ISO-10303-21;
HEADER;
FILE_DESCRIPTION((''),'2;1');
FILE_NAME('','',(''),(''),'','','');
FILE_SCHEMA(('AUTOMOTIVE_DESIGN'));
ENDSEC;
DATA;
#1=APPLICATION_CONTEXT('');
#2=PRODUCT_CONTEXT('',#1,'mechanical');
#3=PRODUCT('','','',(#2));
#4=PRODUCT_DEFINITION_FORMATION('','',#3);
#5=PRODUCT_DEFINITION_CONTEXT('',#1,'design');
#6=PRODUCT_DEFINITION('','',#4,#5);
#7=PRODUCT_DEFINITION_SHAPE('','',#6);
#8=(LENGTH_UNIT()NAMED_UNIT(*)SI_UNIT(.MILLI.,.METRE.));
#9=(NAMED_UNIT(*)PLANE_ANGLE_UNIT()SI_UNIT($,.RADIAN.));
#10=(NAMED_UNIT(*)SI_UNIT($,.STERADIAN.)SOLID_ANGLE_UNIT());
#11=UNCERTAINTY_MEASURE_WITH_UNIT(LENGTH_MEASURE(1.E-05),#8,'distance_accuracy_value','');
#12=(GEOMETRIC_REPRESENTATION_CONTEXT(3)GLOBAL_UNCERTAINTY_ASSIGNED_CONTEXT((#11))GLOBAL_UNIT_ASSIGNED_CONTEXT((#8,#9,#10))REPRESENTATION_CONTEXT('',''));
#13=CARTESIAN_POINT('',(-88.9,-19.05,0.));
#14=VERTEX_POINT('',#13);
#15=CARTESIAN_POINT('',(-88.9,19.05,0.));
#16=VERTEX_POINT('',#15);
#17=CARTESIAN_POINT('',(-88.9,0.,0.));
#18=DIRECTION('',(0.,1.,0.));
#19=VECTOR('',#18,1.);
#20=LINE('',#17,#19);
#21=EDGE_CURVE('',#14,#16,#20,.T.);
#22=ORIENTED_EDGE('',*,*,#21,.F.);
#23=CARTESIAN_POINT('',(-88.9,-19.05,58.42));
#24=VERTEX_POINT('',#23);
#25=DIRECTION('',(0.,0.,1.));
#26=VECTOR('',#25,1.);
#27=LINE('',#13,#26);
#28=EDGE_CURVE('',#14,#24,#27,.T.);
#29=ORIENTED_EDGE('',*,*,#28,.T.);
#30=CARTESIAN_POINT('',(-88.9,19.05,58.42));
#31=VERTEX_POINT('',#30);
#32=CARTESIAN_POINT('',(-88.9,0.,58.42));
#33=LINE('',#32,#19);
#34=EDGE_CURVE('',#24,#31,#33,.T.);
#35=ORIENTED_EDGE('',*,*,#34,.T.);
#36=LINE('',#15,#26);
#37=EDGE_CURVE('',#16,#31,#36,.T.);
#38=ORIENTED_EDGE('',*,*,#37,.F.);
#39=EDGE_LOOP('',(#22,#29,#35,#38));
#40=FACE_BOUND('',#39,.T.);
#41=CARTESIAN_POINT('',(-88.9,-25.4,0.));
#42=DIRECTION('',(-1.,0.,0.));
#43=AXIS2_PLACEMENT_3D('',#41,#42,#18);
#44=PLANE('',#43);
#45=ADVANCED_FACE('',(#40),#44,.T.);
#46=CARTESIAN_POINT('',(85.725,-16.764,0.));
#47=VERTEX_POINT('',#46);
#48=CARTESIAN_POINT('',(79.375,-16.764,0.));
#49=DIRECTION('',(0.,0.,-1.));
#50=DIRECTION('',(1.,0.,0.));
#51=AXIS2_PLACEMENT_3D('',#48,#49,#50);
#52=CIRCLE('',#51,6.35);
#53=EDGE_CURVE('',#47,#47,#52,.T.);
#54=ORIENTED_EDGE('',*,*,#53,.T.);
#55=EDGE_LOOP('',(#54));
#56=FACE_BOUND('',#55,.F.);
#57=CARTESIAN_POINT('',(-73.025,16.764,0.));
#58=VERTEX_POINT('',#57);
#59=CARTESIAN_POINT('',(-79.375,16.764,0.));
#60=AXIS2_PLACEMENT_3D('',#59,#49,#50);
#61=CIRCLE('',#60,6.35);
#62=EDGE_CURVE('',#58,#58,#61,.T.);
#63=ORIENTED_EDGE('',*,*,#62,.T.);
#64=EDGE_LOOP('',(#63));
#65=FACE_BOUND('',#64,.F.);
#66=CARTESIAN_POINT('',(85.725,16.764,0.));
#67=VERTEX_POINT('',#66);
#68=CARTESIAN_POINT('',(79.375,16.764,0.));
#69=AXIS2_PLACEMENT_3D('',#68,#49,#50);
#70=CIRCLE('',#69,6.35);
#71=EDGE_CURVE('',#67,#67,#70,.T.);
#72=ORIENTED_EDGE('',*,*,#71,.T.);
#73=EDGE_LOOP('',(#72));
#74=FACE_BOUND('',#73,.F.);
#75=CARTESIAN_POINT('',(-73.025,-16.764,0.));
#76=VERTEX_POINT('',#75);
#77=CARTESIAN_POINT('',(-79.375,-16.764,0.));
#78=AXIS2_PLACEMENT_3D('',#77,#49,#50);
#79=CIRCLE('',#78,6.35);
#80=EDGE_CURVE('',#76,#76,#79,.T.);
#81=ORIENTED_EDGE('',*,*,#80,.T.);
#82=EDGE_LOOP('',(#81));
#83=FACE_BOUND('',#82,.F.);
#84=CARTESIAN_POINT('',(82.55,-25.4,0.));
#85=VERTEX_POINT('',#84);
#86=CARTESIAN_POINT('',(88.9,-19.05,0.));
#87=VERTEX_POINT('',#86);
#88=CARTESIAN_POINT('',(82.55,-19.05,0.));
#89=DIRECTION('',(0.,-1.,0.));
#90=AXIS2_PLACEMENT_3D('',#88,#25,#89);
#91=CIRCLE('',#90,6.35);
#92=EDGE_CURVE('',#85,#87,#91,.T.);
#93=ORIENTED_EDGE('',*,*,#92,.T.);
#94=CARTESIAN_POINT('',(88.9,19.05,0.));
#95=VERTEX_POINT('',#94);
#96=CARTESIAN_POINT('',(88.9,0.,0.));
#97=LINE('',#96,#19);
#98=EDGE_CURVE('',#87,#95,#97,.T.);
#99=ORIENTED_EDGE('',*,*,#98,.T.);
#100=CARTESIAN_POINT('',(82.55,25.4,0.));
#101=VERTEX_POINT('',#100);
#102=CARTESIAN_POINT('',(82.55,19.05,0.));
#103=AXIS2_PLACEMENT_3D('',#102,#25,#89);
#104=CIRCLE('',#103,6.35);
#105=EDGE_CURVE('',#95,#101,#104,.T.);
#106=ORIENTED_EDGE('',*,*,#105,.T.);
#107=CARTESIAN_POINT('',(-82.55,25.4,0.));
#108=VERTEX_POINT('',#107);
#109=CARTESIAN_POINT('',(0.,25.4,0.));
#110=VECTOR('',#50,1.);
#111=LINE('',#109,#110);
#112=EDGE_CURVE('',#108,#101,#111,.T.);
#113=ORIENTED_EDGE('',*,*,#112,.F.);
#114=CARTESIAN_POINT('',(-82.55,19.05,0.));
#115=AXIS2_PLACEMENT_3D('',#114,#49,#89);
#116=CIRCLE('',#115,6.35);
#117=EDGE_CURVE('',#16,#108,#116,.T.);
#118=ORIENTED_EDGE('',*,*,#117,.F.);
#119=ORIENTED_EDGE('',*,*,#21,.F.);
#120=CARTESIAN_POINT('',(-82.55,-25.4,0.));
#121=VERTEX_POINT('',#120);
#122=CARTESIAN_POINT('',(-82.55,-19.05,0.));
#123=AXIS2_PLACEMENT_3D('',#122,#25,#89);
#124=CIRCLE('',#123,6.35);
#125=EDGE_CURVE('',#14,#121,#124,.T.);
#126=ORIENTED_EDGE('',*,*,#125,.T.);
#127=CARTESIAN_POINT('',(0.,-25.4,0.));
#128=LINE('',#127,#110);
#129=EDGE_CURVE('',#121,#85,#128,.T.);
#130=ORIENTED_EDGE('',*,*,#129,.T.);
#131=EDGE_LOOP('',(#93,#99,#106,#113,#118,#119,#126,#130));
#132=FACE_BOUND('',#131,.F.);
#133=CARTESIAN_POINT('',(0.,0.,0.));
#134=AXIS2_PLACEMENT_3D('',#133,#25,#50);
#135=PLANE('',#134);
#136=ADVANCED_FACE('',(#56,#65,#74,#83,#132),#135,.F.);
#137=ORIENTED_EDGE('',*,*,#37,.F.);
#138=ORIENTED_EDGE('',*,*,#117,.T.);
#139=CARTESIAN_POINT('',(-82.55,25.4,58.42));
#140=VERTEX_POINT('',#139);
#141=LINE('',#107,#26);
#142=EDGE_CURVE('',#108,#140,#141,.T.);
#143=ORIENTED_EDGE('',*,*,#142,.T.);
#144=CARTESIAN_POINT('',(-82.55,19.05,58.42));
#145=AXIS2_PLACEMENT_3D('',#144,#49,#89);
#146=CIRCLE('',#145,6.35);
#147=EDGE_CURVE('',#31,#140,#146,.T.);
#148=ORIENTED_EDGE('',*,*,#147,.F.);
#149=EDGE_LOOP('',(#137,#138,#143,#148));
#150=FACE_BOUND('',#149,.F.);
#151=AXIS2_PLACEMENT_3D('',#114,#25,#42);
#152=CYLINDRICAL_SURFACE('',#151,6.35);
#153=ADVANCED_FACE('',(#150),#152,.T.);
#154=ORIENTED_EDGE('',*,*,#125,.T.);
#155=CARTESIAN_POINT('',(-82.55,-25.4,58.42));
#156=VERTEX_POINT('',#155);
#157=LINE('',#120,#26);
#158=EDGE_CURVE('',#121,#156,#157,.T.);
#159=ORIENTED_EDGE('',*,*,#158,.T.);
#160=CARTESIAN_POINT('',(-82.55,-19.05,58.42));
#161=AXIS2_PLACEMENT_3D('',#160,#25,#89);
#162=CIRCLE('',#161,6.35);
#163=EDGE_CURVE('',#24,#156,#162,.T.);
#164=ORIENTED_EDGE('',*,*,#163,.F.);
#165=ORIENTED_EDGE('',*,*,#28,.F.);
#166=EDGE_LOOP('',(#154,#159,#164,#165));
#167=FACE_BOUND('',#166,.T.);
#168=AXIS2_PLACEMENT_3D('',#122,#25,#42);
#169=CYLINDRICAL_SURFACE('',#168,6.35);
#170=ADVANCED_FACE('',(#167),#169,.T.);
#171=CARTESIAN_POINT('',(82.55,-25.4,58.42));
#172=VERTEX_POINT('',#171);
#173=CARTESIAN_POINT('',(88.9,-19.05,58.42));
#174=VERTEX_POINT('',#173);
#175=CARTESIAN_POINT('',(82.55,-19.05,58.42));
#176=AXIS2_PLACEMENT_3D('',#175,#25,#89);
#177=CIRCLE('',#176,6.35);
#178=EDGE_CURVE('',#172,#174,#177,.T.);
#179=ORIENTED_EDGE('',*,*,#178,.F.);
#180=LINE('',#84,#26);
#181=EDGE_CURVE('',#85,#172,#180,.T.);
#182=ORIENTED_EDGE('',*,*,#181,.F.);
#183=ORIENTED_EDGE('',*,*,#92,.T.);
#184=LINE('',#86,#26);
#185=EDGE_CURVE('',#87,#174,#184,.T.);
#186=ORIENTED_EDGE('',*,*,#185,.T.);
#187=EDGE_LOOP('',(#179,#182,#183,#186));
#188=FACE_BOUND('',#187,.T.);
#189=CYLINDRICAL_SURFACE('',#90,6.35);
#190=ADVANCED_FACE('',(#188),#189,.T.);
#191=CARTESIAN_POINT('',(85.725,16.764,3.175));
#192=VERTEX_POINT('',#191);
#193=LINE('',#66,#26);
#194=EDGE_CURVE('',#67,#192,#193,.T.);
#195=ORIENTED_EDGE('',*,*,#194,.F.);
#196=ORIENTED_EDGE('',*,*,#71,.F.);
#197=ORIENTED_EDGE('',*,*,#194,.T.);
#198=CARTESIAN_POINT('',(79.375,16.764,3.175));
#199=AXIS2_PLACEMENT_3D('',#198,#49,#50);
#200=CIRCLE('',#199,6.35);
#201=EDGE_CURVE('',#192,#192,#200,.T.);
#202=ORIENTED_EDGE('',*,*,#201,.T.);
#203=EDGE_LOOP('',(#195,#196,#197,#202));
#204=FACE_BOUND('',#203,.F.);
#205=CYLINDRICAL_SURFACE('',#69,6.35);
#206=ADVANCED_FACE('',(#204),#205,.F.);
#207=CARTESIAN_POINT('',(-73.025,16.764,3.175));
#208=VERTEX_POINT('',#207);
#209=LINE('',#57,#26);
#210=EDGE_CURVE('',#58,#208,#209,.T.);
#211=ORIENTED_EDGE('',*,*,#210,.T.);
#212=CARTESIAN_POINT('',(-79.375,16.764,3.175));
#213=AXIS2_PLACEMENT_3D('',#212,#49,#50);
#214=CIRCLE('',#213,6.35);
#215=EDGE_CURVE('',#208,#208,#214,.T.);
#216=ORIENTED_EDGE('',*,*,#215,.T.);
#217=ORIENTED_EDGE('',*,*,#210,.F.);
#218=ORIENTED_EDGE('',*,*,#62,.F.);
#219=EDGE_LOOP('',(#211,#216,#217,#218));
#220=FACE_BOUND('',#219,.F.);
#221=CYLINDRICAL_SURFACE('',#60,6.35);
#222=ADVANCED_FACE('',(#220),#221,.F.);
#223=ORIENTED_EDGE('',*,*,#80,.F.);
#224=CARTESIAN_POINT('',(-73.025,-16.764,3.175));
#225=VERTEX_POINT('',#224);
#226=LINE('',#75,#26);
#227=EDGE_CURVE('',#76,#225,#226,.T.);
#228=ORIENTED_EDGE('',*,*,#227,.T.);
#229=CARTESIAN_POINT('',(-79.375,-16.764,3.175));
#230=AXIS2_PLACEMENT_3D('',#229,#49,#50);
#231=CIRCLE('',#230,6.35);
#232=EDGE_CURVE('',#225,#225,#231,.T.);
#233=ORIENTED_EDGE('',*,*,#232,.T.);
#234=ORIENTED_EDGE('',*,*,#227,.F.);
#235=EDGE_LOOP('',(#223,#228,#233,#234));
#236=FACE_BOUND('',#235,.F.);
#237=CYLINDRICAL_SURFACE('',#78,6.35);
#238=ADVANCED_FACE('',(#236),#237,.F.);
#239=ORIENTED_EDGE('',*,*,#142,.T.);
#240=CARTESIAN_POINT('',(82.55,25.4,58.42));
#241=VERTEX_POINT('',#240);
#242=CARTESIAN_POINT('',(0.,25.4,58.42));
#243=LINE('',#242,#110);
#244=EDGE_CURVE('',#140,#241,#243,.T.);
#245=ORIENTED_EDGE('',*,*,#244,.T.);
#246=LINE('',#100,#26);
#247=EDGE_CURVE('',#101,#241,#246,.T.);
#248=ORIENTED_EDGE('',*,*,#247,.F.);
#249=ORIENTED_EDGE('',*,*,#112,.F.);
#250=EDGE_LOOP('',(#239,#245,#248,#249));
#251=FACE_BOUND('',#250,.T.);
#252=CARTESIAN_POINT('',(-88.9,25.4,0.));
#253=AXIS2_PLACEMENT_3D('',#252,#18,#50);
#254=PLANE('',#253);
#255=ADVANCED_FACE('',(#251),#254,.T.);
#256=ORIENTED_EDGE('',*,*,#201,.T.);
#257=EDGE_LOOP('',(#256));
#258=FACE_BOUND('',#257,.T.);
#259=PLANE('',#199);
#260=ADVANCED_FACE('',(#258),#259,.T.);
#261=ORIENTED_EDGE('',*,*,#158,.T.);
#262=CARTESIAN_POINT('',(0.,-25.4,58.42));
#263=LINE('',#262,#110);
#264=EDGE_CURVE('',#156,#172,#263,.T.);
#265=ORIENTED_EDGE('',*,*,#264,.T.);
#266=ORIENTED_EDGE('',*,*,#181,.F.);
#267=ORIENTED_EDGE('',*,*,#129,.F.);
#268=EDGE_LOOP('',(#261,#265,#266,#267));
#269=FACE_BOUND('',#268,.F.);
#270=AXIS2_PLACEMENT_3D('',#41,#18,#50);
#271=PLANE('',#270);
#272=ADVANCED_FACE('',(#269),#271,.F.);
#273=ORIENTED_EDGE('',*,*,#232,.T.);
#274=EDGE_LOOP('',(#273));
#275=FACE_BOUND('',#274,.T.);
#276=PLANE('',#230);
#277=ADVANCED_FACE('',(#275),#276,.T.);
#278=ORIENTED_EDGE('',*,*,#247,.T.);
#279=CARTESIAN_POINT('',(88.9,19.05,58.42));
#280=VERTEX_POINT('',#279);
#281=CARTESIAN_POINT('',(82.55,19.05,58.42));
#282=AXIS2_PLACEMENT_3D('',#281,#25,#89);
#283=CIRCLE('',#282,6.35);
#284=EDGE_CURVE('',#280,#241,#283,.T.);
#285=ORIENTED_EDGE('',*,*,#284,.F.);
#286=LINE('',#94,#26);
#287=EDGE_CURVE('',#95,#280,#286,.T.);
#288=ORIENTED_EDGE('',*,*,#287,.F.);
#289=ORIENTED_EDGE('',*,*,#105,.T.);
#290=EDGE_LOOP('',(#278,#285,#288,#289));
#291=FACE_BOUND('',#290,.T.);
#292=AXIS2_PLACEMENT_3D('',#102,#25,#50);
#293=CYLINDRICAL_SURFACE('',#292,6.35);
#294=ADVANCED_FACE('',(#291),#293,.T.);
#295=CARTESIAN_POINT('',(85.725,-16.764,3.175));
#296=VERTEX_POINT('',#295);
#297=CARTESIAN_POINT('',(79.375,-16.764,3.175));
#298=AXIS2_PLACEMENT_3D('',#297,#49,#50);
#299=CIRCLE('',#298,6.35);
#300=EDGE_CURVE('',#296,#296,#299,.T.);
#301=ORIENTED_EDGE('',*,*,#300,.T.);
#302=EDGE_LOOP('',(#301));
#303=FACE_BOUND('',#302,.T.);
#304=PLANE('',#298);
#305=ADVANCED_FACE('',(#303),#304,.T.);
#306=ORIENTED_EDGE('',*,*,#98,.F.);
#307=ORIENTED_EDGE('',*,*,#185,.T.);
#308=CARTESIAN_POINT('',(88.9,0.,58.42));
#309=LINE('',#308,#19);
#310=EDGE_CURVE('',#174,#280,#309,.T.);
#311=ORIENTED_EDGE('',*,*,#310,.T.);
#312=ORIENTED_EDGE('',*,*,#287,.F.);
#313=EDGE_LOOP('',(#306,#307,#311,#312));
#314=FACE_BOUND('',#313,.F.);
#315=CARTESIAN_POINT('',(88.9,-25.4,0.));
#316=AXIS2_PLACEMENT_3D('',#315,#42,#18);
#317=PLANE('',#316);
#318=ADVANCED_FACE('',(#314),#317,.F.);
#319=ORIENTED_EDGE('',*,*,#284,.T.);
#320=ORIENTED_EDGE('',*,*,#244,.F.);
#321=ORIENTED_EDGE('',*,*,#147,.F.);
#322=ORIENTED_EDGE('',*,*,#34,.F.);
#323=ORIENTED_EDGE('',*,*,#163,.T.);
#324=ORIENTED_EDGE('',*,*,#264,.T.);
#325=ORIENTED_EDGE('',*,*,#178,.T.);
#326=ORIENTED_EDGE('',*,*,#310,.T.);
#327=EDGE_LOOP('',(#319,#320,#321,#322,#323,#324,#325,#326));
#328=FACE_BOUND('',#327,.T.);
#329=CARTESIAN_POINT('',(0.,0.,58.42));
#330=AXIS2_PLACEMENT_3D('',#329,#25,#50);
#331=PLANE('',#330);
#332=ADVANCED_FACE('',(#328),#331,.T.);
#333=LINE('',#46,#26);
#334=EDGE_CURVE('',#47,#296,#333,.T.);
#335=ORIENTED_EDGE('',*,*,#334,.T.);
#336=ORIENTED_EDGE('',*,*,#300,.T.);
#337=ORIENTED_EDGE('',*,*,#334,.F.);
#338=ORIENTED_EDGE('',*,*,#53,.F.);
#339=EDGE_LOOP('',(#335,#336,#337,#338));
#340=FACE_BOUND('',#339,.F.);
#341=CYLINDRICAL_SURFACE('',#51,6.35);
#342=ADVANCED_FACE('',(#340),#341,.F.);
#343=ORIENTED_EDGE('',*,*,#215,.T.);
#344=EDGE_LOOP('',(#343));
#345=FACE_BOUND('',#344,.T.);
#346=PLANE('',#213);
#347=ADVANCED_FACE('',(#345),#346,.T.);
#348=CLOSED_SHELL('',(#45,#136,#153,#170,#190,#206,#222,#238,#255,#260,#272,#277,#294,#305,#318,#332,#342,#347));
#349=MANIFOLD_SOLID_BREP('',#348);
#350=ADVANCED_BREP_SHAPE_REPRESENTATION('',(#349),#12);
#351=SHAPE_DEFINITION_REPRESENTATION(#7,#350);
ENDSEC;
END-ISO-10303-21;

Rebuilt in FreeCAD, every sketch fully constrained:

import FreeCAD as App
import Part
import Sketcher
from FreeCAD import Vector
Q = App.Units.Quantity


def edges_at(feature, points):
    """Names of the edges that pass closest to the given points."""
    edges = feature.Shape.Edges
    near = lambda p: min(range(len(edges)), key=lambda i: edges[i].distToShape(Part.Vertex(*p))[0])
    return sorted({f"Edge{near(p) + 1}" for p in points})


def add_polygon(sketch, points):
    """Adds a closed chain of lines whose ends are joined by coincident constraints."""
    first, n = sketch.GeometryCount, len(points)
    for a, b in zip(points, points[1:] + points[:1]):
        sketch.addGeometry(Part.LineSegment(App.Vector(*a, 0), App.Vector(*b, 0)), False)
    for i in range(n):
        sketch.addConstraint(Sketcher.Constraint("Coincident", first + i, 2, first + (i + 1) % n, 1))

doc = App.newDocument("Part")
params = doc.addObject("Spreadsheet::Sheet", "Params")
for row, (alias, value) in enumerate([
    ("sketch1_width", "7 in"),
    ("sketch1_height", "2 in"),
    ("pad1_length", "2.3 in"),
    ("fillet_radius", "0.25 in"),
    ("sketch2_diameter", "0.5 in"),
    ("pocket1_length", "0.125 in"),
], start=1):
    params.set(f"A{row}", alias)
    params.set(f"B{row}", "=" + value)
    params.setAlias(f"B{row}", alias)

body = doc.addObject("PartDesign::Body", "Body")

# Sketch on XY plane
sketch1 = body.newObject("Sketcher::SketchObject", "Sketch")
sketch1.AttachmentSupport = (doc.getObject("XY_Plane"), [""])
sketch1.MapMode = "FlatFace"
add_polygon(sketch1, [(-88.9, 25.4), (-88.9, -25.4), (88.9, -25.4), (88.9, 25.4)])  # lines 0-3
sketch1.addConstraint([
    Sketcher.Constraint("Vertical", 0),
    Sketcher.Constraint("Horizontal", 1),
    Sketcher.Constraint("Vertical", 2),
    Sketcher.Constraint("Horizontal", 3),
    Sketcher.Constraint("Symmetric", 0, 2, 2, 2, -1, 1),
    Sketcher.Constraint("DistanceX", 1, 1, 1, 2, Q("7 in")),
    Sketcher.Constraint("DistanceY", 0, 2, 0, 1, Q("2 in")),
])
sketch1.setExpression("Constraints[9]", "Params.sketch1_width")
sketch1.setExpression("Constraints[10]", "Params.sketch1_height")
pad1 = body.newObject("PartDesign::Pad", "Pad")
pad1.Profile = sketch1
pad1.setExpression("Length", "Params.pad1_length")
doc.recompute()

fillet = body.newObject("PartDesign::Fillet", "Fillet")
fillet.Base = (pad1, edges_at(pad1, [
    (-88.9, 25.4, 29.21),
    (88.9, 25.4, 29.21),
    (88.9, -25.4, 29.21),
    (-88.9, -25.4, 29.21),
]))
fillet.setExpression("Radius", "Params.fillet_radius")

# Sketch on XY plane
sketch2 = body.newObject("Sketcher::SketchObject", "Sketch001")
sketch2.AttachmentSupport = (doc.getObject("XY_Plane"), [""])
sketch2.MapMode = "FlatFace"
sketch2.addGeometry([
    Part.Circle(Vector(79.375, -16.764, 0), Vector(0, 0, 1), 6.35),
    Part.Circle(Vector(79.375, 16.764, 0), Vector(0, 0, 1), 6.35),
    Part.Circle(Vector(-79.375, -16.764, 0), Vector(0, 0, 1), 6.35),
    Part.Circle(Vector(-79.375, 16.764, 0), Vector(0, 0, 1), 6.35),
], False)
sketch2.addConstraint([
    Sketcher.Constraint("Equal", 0, 1),
    Sketcher.Constraint("Equal", 1, 2),
    Sketcher.Constraint("Equal", 2, 3),
    Sketcher.Constraint("Symmetric", 1, 3, 2, 3, -1, 1),
    Sketcher.Constraint("Symmetric", 0, 3, 3, 3, -1, 1),
    Sketcher.Constraint("Symmetric", 0, 3, 2, 3, -2),
    Sketcher.Constraint("Diameter", 0, Q("0.5 in")),
    Sketcher.Constraint("DistanceY", 0, 3, -1, 1, Q("0.66 in")),
    Sketcher.Constraint("DistanceX", 2, 3, 0, 3, Q("6.25 in")),
])
sketch2.setExpression("Constraints[6]", "Params.sketch2_diameter")
pocket1 = body.newObject("PartDesign::Pocket", "Pocket")
pocket1.Profile = sketch2
pocket1.setExpression("Length", "Params.pocket1_length")
pocket1.Reversed = True

doc.recompute()
